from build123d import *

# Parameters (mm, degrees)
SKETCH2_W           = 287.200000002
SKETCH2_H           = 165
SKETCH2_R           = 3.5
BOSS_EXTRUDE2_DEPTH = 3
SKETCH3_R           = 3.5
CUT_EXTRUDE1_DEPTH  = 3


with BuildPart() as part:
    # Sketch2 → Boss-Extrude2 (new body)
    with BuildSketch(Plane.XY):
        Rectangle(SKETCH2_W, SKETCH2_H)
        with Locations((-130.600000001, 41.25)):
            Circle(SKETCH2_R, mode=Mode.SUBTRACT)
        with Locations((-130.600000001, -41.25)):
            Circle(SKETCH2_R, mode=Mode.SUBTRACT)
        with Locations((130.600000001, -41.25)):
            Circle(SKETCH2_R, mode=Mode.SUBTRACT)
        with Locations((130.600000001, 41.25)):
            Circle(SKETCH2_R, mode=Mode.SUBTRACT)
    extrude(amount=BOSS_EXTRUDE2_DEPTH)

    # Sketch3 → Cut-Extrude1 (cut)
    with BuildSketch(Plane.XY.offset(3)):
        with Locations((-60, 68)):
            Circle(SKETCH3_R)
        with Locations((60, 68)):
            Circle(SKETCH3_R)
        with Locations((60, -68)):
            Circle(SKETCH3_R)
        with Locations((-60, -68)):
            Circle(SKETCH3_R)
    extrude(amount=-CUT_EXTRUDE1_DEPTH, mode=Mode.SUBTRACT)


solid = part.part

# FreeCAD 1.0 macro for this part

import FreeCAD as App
import Part
import Sketcher
from FreeCAD import Vector

doc = App.newDocument("Part")
body = doc.addObject("PartDesign::Body", "Body")

# Sketch on XY plane
sketch1 = body.newObject("Sketcher::SketchObject", "Sketch")
sketch1.AttachmentSupport = (doc.getObject("XY_Plane"), [""])
sketch1.MapMode = "FlatFace"
sketch1.addGeometry([
    Part.LineSegment(Vector(-143.6, 82.5, 0), Vector(-143.6, -82.5, 0)),  # 0
    Part.LineSegment(Vector(-143.6, -82.5, 0), Vector(143.6, -82.5, 0)),  # 1
    Part.LineSegment(Vector(143.6, -82.5, 0), Vector(143.6, 82.5, 0)),  # 2
    Part.LineSegment(Vector(143.6, 82.5, 0), Vector(-143.6, 82.5, 0)),  # 3
    Part.Circle(Vector(-130.6, -41.2, 0), Vector(0, 0, 1), 3.5),  # 4
    Part.Circle(Vector(130.6, -41.2, 0), Vector(0, 0, 1), 3.5),  # 5
    Part.Circle(Vector(-130.6, 41.2, 0), Vector(0, 0, 1), 3.5),  # 6
    Part.Circle(Vector(130.6, 41.2, 0), Vector(0, 0, 1), 3.5),  # 7
], False)
sketch1.addConstraint([
    Sketcher.Constraint("Coincident", 0, 2, 1, 1),
    Sketcher.Constraint("Coincident", 1, 2, 2, 1),
    Sketcher.Constraint("Coincident", 2, 2, 3, 1),
    Sketcher.Constraint("Coincident", 3, 2, 0, 1),
    Sketcher.Constraint("Vertical", 0),
    Sketcher.Constraint("Horizontal", 1),
    Sketcher.Constraint("Vertical", 2),
    Sketcher.Constraint("Horizontal", 3),
    Sketcher.Constraint("Equal", 4, 5),
    Sketcher.Constraint("Equal", 5, 6),
    Sketcher.Constraint("Equal", 6, 7),
    Sketcher.Constraint("Symmetric", 5, 3, 6, 3, -1, 1),
    Sketcher.Constraint("Symmetric", 4, 3, 7, 3, -1, 1),
    Sketcher.Constraint("Symmetric", 0, 2, 2, 2, -1, 1),
    Sketcher.Constraint("Symmetric", 4, 3, 5, 3, -2),
    Sketcher.Constraint("Diameter", 4, 7.0),
    Sketcher.Constraint("DistanceY", 0, 2, 0, 1, 165.0),
    Sketcher.Constraint("DistanceX", 1, 1, 1, 2, 287.2),
    Sketcher.Constraint("DistanceX", 0, 2, 4, 3, 13.0),
    Sketcher.Constraint("DistanceY", 4, 3, 6, 3, 82.5),
])
pad1 = body.newObject("PartDesign::Pad", "Pad")
pad1.Profile = sketch1
pad1.Length = 3

# Sketch on XY plane
sketch2 = body.newObject("Sketcher::SketchObject", "Sketch001")
sketch2.AttachmentSupport = (doc.getObject("XY_Plane"), [""])
sketch2.MapMode = "FlatFace"
sketch2.AttachmentOffset = App.Placement(Vector(0, 0, 3), App.Rotation())
sketch2.addGeometry([
    Part.Circle(Vector(-60, 68, 0), Vector(0, 0, 1), 3.5),
    Part.Circle(Vector(60, 68, 0), Vector(0, 0, 1), 3.5),
    Part.Circle(Vector(60, -68, 0), Vector(0, 0, 1), 3.5),
    Part.Circle(Vector(-60, -68, 0), Vector(0, 0, 1), 3.5),
], False)
sketch2.addConstraint([
    Sketcher.Constraint("Equal", 0, 1),
    Sketcher.Constraint("Equal", 1, 2),
    Sketcher.Constraint("Equal", 2, 3),
    Sketcher.Constraint("Symmetric", 0, 3, 2, 3, -1, 1),
    Sketcher.Constraint("Symmetric", 1, 3, 3, 3, -1, 1),
    Sketcher.Constraint("Symmetric", 0, 3, 1, 3, -2),
    Sketcher.Constraint("Diameter", 0, 7.0),
    Sketcher.Constraint("DistanceX", 0, 3, -1, 1, 60.0),
    Sketcher.Constraint("DistanceY", -1, 1, 0, 3, 68.0),
])
pocket1 = body.newObject("PartDesign::Pocket", "Pocket")
pocket1.Profile = sketch2
pocket1.Length = 3

doc.recompute()
